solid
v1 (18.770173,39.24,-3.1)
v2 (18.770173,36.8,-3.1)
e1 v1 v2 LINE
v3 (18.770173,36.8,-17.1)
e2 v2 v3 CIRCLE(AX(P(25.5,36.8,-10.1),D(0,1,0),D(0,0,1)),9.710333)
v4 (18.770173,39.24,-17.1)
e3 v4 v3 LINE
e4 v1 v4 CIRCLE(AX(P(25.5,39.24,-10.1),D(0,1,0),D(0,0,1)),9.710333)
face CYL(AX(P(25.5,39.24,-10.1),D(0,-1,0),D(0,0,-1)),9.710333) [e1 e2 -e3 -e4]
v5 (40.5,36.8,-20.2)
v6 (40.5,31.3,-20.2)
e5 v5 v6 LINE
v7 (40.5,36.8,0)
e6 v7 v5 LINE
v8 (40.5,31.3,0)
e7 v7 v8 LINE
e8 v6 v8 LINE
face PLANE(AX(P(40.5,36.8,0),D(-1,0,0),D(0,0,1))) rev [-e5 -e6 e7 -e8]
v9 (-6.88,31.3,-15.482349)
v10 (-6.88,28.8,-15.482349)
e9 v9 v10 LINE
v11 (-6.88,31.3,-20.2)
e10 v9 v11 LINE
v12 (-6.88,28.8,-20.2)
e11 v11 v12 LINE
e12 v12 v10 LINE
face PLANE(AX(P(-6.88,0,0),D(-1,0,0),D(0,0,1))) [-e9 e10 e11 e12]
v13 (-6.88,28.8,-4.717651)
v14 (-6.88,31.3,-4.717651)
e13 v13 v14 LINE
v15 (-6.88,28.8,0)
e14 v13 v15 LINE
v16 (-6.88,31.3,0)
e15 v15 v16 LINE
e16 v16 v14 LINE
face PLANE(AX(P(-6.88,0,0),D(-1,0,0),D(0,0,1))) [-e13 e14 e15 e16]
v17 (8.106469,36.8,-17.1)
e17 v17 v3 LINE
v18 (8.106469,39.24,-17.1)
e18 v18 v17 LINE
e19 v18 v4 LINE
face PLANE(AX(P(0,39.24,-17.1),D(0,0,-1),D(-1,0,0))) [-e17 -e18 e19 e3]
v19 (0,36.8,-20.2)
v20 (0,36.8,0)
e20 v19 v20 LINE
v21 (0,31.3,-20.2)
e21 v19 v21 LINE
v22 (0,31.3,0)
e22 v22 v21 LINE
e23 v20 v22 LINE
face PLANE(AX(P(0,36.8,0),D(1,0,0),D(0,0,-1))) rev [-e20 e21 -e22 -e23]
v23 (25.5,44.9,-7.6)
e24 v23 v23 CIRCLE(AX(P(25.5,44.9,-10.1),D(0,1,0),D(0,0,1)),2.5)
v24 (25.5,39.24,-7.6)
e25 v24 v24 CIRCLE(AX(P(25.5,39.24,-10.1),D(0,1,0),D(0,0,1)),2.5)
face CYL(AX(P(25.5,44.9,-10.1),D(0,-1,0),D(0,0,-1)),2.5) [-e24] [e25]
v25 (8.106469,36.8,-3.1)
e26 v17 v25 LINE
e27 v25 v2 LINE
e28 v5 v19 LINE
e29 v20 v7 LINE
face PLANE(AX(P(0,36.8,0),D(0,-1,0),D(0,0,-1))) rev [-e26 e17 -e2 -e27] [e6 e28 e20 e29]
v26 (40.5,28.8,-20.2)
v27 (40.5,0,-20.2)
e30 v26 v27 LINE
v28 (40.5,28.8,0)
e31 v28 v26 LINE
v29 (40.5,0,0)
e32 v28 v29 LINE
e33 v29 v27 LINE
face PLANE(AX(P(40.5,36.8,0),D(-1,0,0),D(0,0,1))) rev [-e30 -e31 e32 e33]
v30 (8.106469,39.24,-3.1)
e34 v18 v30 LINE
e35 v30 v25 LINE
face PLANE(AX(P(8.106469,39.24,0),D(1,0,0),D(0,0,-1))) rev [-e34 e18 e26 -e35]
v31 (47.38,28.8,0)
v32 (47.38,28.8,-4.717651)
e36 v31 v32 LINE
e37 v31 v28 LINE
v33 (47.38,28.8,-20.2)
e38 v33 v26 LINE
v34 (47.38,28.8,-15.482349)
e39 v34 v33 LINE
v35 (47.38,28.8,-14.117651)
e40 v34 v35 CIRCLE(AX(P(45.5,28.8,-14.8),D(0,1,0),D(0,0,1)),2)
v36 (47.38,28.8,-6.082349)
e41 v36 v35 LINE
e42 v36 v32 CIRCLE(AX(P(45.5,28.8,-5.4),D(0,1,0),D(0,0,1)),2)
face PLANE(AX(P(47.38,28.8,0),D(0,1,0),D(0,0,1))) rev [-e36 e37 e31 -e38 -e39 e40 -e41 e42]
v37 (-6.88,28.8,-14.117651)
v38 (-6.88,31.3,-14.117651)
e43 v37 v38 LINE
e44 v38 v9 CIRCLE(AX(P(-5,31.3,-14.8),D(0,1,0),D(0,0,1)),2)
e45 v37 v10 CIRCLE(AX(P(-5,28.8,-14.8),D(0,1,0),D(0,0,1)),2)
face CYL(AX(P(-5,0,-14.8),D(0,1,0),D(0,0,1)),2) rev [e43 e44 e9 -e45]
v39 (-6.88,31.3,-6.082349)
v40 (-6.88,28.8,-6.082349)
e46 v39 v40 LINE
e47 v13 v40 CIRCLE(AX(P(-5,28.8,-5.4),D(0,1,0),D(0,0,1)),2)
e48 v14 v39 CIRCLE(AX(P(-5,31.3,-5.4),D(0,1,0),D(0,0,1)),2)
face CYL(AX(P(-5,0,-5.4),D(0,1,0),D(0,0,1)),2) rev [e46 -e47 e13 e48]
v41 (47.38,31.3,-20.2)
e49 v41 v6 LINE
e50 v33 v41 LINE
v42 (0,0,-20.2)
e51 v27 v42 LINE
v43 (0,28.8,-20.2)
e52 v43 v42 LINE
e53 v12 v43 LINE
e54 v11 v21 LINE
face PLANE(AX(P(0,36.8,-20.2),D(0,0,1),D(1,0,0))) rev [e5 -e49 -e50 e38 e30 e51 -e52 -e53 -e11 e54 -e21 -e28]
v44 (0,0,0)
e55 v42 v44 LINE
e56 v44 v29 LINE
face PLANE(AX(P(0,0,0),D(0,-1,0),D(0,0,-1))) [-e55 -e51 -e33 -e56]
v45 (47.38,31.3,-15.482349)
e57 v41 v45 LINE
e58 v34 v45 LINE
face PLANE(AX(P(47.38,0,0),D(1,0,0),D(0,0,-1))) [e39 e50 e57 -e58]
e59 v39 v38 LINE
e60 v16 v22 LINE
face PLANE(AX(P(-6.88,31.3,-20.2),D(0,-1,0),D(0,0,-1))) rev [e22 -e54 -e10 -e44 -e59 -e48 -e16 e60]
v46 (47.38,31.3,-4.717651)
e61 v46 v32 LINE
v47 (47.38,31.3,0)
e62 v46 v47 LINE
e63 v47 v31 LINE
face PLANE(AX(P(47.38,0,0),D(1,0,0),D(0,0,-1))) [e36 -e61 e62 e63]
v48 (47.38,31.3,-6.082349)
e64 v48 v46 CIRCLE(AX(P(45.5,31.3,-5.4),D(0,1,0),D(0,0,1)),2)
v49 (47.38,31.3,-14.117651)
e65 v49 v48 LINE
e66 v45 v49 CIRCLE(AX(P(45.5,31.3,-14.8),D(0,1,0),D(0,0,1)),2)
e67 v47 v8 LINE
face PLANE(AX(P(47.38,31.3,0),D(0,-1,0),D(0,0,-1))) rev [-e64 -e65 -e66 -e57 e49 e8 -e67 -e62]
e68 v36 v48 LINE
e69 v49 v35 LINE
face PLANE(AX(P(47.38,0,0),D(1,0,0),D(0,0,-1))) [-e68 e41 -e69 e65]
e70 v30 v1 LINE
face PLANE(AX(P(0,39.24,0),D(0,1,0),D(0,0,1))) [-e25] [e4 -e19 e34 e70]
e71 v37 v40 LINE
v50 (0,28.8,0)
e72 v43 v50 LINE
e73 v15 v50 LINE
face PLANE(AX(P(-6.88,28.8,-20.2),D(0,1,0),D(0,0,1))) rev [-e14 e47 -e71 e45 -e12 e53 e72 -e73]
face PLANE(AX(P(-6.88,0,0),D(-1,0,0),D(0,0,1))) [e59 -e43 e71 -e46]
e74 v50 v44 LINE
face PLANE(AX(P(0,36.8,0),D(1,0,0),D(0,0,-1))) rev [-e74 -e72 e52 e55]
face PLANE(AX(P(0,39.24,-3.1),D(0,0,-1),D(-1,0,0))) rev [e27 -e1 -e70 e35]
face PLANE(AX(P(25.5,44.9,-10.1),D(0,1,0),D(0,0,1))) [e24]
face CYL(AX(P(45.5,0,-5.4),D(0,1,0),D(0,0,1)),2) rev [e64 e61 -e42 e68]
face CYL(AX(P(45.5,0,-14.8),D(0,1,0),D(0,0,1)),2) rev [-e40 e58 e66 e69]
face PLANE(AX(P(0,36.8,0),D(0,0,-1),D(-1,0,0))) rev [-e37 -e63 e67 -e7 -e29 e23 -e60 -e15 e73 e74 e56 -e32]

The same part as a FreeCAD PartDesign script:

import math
import FreeCAD as App
import Part
import Sketcher
from FreeCAD import Vector
Q = App.Units.Quantity


def add_polygon(sketch, points):
    """Adds a closed chain of lines whose ends are joined by coincident constraints."""
    first, n = sketch.GeometryCount, len(points)
    for a, b in zip(points, points[1:] + points[:1]):
        sketch.addGeometry(Part.LineSegment(App.Vector(*a, 0), App.Vector(*b, 0)), False)
    for i in range(n):
        sketch.addConstraint(Sketcher.Constraint("Coincident", first + i, 2, first + (i + 1) % n, 1))

doc = App.newDocument("Part")
body = doc.addObject("PartDesign::Body", "Body")

sketch1 = body.newObject("Sketcher::SketchObject", "Sketch")
sketch1.AttachmentSupport = (doc.getObject("XZ_Plane"), [""])
sketch1.MapMode = "FlatFace"
add_polygon(sketch1, [(0, -20), (0, 0), (40, 0), (40, -20)])
sketch1.addConstraint([
    Sketcher.Constraint("Vertical", 0),
    Sketcher.Constraint("Horizontal", 1),
    Sketcher.Constraint("Vertical", 2),
    Sketcher.Constraint("Horizontal", 3),
    Sketcher.Constraint("Coincident", 0, 2, -1, 1),
    Sketcher.Constraint("DistanceX", 1, 1, 1, 2, Q("40.5 mm")),
    Sketcher.Constraint("DistanceY", 0, 1, 0, 2, Q("20.2 mm")),
])
pad1 = body.newObject("PartDesign::Pad", "Pad")
pad1.Profile = sketch1
pad1.Length = 36.8
pad1.Reversed = True

sketch2 = body.newObject("Sketcher::SketchObject", "Sketch001")
sketch2.AttachmentSupport = (doc.getObject("XZ_Plane"), [""])
sketch2.MapMode = "FlatFace"
sketch2.AttachmentOffset = App.Placement(Vector(0, 0, -36.8), App.Rotation())
sketch2.addGeometry([
    Part.LineSegment(Vector(19, -17, 0), Vector(8, -17, 0)),
    Part.LineSegment(Vector(8, -17, 0), Vector(8, -3, 0)),
    Part.LineSegment(Vector(8, -3, 0), Vector(19, -3, 0)),
    Part.ArcOfCircle(Part.Circle(Vector(26, -10, 0), Vector(0, 0, 1), 10), math.radians(-134), math.radians(134)),
], False)
sketch2.addConstraint([
    Sketcher.Constraint("Coincident", 0, 2, 1, 1),
    Sketcher.Constraint("Coincident", 1, 2, 2, 1),
    Sketcher.Constraint("Coincident", 2, 2, 3, 2),
    Sketcher.Constraint("Coincident", 3, 1, 0, 1),
    Sketcher.Constraint("Horizontal", 0),
    Sketcher.Constraint("Vertical", 1),
    Sketcher.Constraint("Horizontal", 2),
    Sketcher.Constraint("Vertical", 2, 2, 3, 1),
    Sketcher.Constraint("DistanceY", 1, 1, 1, 2, Q("14 mm")),
    Sketcher.Constraint("DistanceX", -1, 1, 3, 3, Q("25.5 mm")),
    Sketcher.Constraint("DistanceY", 3, 3, -1, 1, Q("10.1 mm")),
    Sketcher.Constraint("Radius", 3, Q("9.710333 mm")),
    Sketcher.Constraint("DistanceX", 0, 2, 0, 1, Q("10.663704 mm")),
])
pad2 = body.newObject("PartDesign::Pad", "Pad001")
pad2.Profile = sketch2
pad2.Length = 2.44
pad2.Reversed = True

sketch3 = body.newObject("Sketcher::SketchObject", "Sketch002")
sketch3.AttachmentSupport = (doc.getObject("XZ_Plane"), [""])
sketch3.MapMode = "FlatFace"
sketch3.AttachmentOffset = App.Placement(Vector(0, 0, -39.24), App.Rotation())
sketch3.addGeometry(Part.Circle(Vector(25.5, -10.1, 0), Vector(0, 0, 1), 2.5), False)
sketch3.addConstraint([
    Sketcher.Constraint("Diameter", 0, Q("5 mm")),
    Sketcher.Constraint("DistanceX", -1, 1, 0, 3, Q("25.5 mm")),
    Sketcher.Constraint("DistanceY", 0, 3, -1, 1, Q("10.1 mm")),
])
pad3 = body.newObject("PartDesign::Pad", "Pad002")
pad3.Profile = sketch3
pad3.Length = 5.66
pad3.Reversed = True

sketch4 = body.newObject("Sketcher::SketchObject", "Sketch003")
sketch4.AttachmentSupport = (doc.getObject("YZ_Plane"), [""])
sketch4.MapMode = "FlatFace"
add_polygon(sketch4, [(31.3, -20.2), (28.8, -20.2), (28.8, 0), (31.3, 0)])
sketch4.addConstraint([
    Sketcher.Constraint("Horizontal", 0),
    Sketcher.Constraint("Vertical", 1),
    Sketcher.Constraint("Horizontal", 2),
    Sketcher.Constraint("Vertical", 3),
    Sketcher.Constraint("PointOnObject", 1, 2, -1),
    Sketcher.Constraint("DistanceX", 0, 2, 0, 1, Q("2.5 mm")),
    Sketcher.Constraint("DistanceY", 1, 1, 1, 2, Q("20.2 mm")),
    Sketcher.Constraint("DistanceX", -1, 1, 0, 2, Q("28.8 mm")),
])
pad4 = body.newObject("PartDesign::Pad", "Pad003")
pad4.Profile = sketch4
pad4.Length = 6.88
pad4.Reversed = True

sketch5 = body.newObject("Sketcher::SketchObject", "Sketch004")
sketch5.AttachmentSupport = (doc.getObject("YZ_Plane"), [""])
sketch5.MapMode = "FlatFace"
sketch5.AttachmentOffset = App.Placement(Vector(0, 0, 40.5), App.Rotation())
add_polygon(sketch5, [(31.3, 0), (28.8, 0), (28.8, -20.2), (31.3, -20.2)])
sketch5.addConstraint([
    Sketcher.Constraint("Horizontal", 0),
    Sketcher.Constraint("Vertical", 1),
    Sketcher.Constraint("Horizontal", 2),
    Sketcher.Constraint("Vertical", 3),
    Sketcher.Constraint("PointOnObject", 0, 2, -1),
    Sketcher.Constraint("DistanceX", 0, 2, 0, 1, Q("2.5 mm")),
    Sketcher.Constraint("DistanceY", 1, 2, 1, 1, Q("20.2 mm")),
    Sketcher.Constraint("DistanceX", -1, 1, 0, 2, Q("28.8 mm")),
])
pad5 = body.newObject("PartDesign::Pad", "Pad004")
pad5.Profile = sketch5
pad5.Length = 6.88

sketch6 = body.newObject("Sketcher::SketchObject", "Sketch005")
sketch6.AttachmentSupport = (doc.getObject("XZ_Plane"), [""])
sketch6.MapMode = "FlatFace"
sketch6.AttachmentOffset = App.Placement(Vector(0, 0, -31.3), App.Rotation())
sketch6.addGeometry([
    Part.ArcOfCircle(Part.Circle(Vector(-5, -5.4, 0), Vector(0, 0, 1), 2), math.radians(-160), math.radians(160)),
    Part.LineSegment(Vector(-6.9, -6.1, 0), Vector(-6.9, -4.7, 0)),
    Part.ArcOfCircle(Part.Circle(Vector(-5, -14.8, 0), Vector(0, 0, 1), 2), math.radians(-160), math.radians(160)),
    Part.LineSegment(Vector(-6.9, -15.5, 0), Vector(-6.9, -14.1, 0)),
    Part.LineSegment(Vector(47.4, -14.1, 0), Vector(47.4, -15.5, 0)),
    Part.ArcOfCircle(Part.Circle(Vector(45.5, -14.8, 0), Vector(0, 0, 1), 2), math.radians(20), math.radians(340)),
    Part.LineSegment(Vector(47.4, -4.7, 0), Vector(47.4, -6.1, 0)),
    Part.ArcOfCircle(Part.Circle(Vector(45.5, -5.4, 0), Vector(0, 0, 1), 2), math.radians(20), math.radians(340)),
], False)
sketch6.addConstraint([
    Sketcher.Constraint("Coincident", 0, 1, 1, 1),
    Sketcher.Constraint("Coincident", 1, 2, 0, 2),
    Sketcher.Constraint("Coincident", 2, 1, 3, 1),
    Sketcher.Constraint("Coincident", 3, 2, 2, 2),
    Sketcher.Constraint("Coincident", 4, 1, 5, 1),
    Sketcher.Constraint("Coincident", 5, 2, 4, 2),
    Sketcher.Constraint("Coincident", 6, 1, 7, 1),
    Sketcher.Constraint("Coincident", 7, 2, 6, 2),
    Sketcher.Constraint("Vertical", 1),
    Sketcher.Constraint("Vertical", 3),
    Sketcher.Constraint("Vertical", 4),
    Sketcher.Constraint("Vertical", 6),
    Sketcher.Constraint("Equal", 0, 2),
    Sketcher.Constraint("Equal", 2, 5),
    Sketcher.Constraint("Equal", 5, 7),
    Sketcher.Constraint("Horizontal", 2, 3, 5, 3),
    Sketcher.Constraint("Horizontal", 0, 3, 7, 3),
    Sketcher.Constraint("Horizontal", 3, 2, 4, 1),
    Sketcher.Constraint("Horizontal", 1, 2, 6, 1),
    Sketcher.Constraint("Vertical", 0, 3, 2, 3),
    Sketcher.Constraint("Vertical", 5, 3, 7, 3),
    Sketcher.Constraint("Vertical", 1, 2, 2, 1),
    Sketcher.Constraint("Radius", 0, Q("2 mm")),
    Sketcher.Constraint("DistanceX", 0, 3, -1, 1, Q("5 mm")),
    Sketcher.Constraint("DistanceY", 0, 3, -1, 1, Q("5.4 mm")),
    Sketcher.Constraint("DistanceY", 2, 3, -1, 1, Q("14.8 mm")),
    Sketcher.Constraint("DistanceX", -1, 1, 5, 3, Q("45.5 mm")),
    Sketcher.Constraint("DistanceX", 0, 1, -1, 1, Q("6.88 mm")),
])
pocket1 = body.newObject("PartDesign::Pocket", "Pocket")
pocket1.Profile = sketch6
pocket1.Type = "ThroughAll"
pocket1.Reversed = True

doc.recompute()
